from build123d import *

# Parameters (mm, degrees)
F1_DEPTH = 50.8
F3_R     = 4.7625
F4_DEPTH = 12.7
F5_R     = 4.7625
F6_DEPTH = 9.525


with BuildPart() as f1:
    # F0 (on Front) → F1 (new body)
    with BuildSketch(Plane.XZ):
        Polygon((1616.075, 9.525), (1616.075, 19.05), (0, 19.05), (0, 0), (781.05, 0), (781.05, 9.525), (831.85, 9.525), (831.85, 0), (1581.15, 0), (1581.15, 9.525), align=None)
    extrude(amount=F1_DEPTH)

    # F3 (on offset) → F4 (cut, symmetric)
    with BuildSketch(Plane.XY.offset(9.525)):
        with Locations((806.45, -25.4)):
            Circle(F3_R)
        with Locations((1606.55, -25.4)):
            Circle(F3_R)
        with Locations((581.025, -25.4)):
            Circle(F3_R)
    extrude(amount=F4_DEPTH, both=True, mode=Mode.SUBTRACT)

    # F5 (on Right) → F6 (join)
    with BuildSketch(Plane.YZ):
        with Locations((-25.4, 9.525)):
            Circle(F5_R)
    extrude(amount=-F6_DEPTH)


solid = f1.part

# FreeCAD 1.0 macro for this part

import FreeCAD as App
import Part
import Sketcher

V = App.Vector
Q = App.Units.Quantity


def add_polygon(sketch, points):
    """Adds a closed chain of lines whose ends are joined by coincident constraints."""
    first, n = sketch.GeometryCount, len(points)
    for a, b in zip(points, points[1:] + points[:1]):
        sketch.addGeometry(Part.LineSegment(App.Vector(*a, 0), App.Vector(*b, 0)), False)
    for i in range(n):
        sketch.addConstraint(Sketcher.Constraint("Coincident", first + i, 2, first + (i + 1) % n, 1))

doc = App.newDocument("Part")
params = doc.addObject("Spreadsheet::Sheet", "Params")
for row, (alias, value) in enumerate([
    ("sketch1_width", "2 in"),
    ("sketch1_width2", "29.5 in"),
    ("sketch1_width3", "30.75 in"),
    ("sketch1_height", "0.75 in"),
    ("sketch1_width4", "63.625 in"),
    ("pad1_length", "2 in"),
    ("sketch2_diameter", "0.375 in"),
    ("pocket1_length", "1 in"),
    ("sketch3_diameter", "0.375 in"),
    ("pad2_length", "0.375 in"),
], start=1):
    params.set(f"A{row}", alias)
    params.set(f"B{row}", "=" + value)
    params.setAlias(f"B{row}", alias)

body = doc.addObject("PartDesign::Body", "Body")

# Sketch on XZ plane
sketch1 = body.newObject("Sketcher::SketchObject", "Sketch")
sketch1.AttachmentSupport = (doc.getObject("XZ_Plane"), [""])
sketch1.MapMode = "FlatFace"
add_polygon(sketch1, [(1616, 10), (1616, 19), (0, 19), (0, 0), (781, 0), (781, 10), (832, 10), (832, 0), (1581, 0), (1581, 10)])  # lines 0-9
sketch1.addConstraint(Sketcher.Constraint("Vertical", 0))
sketch1.addConstraint(Sketcher.Constraint("Horizontal", 1))
sketch1.addConstraint(Sketcher.Constraint("Vertical", 2))
sketch1.addConstraint(Sketcher.Constraint("Horizontal", 3))
sketch1.addConstraint(Sketcher.Constraint("Vertical", 4))
sketch1.addConstraint(Sketcher.Constraint("Horizontal", 5))
sketch1.addConstraint(Sketcher.Constraint("Vertical", 6))
sketch1.addConstraint(Sketcher.Constraint("Horizontal", 7))
sketch1.addConstraint(Sketcher.Constraint("Vertical", 8))
sketch1.addConstraint(Sketcher.Constraint("Horizontal", 9))
sketch1.addConstraint(Sketcher.Constraint("Coincident", 2, 2, -1, 1))
sketch1.addConstraint(Sketcher.Constraint("PointOnObject", 6, 2, -1))
sketch1.addConstraint(Sketcher.Constraint("Horizontal", 5, 2, 8, 2))
sketch1.addConstraint(Sketcher.Constraint("Equal", 0, 4))
sketch1.addConstraint(Sketcher.Constraint("DistanceX", 5, 1, 5, 2, Q("2 in")))
sketch1.addConstraint(Sketcher.Constraint("DistanceX", 7, 1, 7, 2, Q("29.5 in")))
sketch1.addConstraint(Sketcher.Constraint("DistanceX", 3, 1, 3, 2, Q("30.75 in")))
sketch1.addConstraint(Sketcher.Constraint("DistanceY", 2, 2, 2, 1, Q("0.75 in")))
sketch1.addConstraint(Sketcher.Constraint("DistanceX", 1, 2, 1, 1, Q("63.625 in")))
sketch1.setExpression("Constraints[24]", "Params.sketch1_width")
sketch1.setExpression("Constraints[25]", "Params.sketch1_width2")
sketch1.setExpression("Constraints[26]", "Params.sketch1_width3")
sketch1.setExpression("Constraints[27]", "Params.sketch1_height")
sketch1.setExpression("Constraints[28]", "Params.sketch1_width4")
pad1 = body.newObject("PartDesign::Pad", "Pad")
pad1.Profile = sketch1
pad1.setExpression("Length", "Params.pad1_length")

# Sketch on XY plane
sketch2 = body.newObject("Sketcher::SketchObject", "Sketch001")
sketch2.AttachmentSupport = (doc.getObject("XY_Plane"), [""])
sketch2.MapMode = "FlatFace"
sketch2.AttachmentOffset = App.Placement(V(0, 0, 0.375 * 25.4), App.Rotation())
sketch2.addGeometry(Part.Circle(V(806.5, -25.4, 0), V(0, 0, 1), 4.8), False)
sketch2.addGeometry(Part.Circle(V(1606.5, -25.4, 0), V(0, 0, 1), 4.8), False)
sketch2.addGeometry(Part.Circle(V(581, -25.4, 0), V(0, 0, 1), 4.8), False)
sketch2.addConstraint(Sketcher.Constraint("Equal", 0, 1))
sketch2.addConstraint(Sketcher.Constraint("Equal", 1, 2))
sketch2.addConstraint(Sketcher.Constraint("Horizontal", 0, 3, 1, 3))
sketch2.addConstraint(Sketcher.Constraint("Horizontal", 1, 3, 2, 3))
sketch2.addConstraint(Sketcher.Constraint("Diameter", 0, Q("0.375 in")))
sketch2.addConstraint(Sketcher.Constraint("DistanceY", 0, 3, -1, 1, Q("1 in")))
sketch2.addConstraint(Sketcher.Constraint("DistanceX", 0, 3, 1, 3, Q("31.5 in")))
sketch2.addConstraint(Sketcher.Constraint("DistanceX", -1, 1, 0, 3, Q("31.75 in")))
sketch2.addConstraint(Sketcher.Constraint("DistanceX", -1, 1, 2, 3, Q("22.875 in")))
sketch2.setExpression("Constraints[4]", "Params.sketch2_diameter")
pocket1 = body.newObject("PartDesign::Pocket", "Pocket")
pocket1.Profile = sketch2
pocket1.setExpression("Length", "Params.pocket1_length")
pocket1.Midplane = True

# Sketch on YZ plane
sketch3 = body.newObject("Sketcher::SketchObject", "Sketch002")
sketch3.AttachmentSupport = (doc.getObject("YZ_Plane"), [""])
sketch3.MapMode = "FlatFace"
sketch3.addGeometry(Part.Circle(V(-25.4, 9.5, 0), V(0, 0, 1), 4.8), False)
sketch3.addConstraint(Sketcher.Constraint("Diameter", 0, Q("0.375 in")))
sketch3.addConstraint(Sketcher.Constraint("DistanceX", 0, 3, -1, 1, Q("1 in")))
sketch3.addConstraint(Sketcher.Constraint("DistanceY", -1, 1, 0, 3, Q("0.375 in")))
sketch3.setExpression("Constraints[0]", "Params.sketch3_diameter")
pad2 = body.newObject("PartDesign::Pad", "Pad001")
pad2.Profile = sketch3
pad2.setExpression("Length", "Params.pad2_length")
pad2.Reversed = True

doc.recompute()
